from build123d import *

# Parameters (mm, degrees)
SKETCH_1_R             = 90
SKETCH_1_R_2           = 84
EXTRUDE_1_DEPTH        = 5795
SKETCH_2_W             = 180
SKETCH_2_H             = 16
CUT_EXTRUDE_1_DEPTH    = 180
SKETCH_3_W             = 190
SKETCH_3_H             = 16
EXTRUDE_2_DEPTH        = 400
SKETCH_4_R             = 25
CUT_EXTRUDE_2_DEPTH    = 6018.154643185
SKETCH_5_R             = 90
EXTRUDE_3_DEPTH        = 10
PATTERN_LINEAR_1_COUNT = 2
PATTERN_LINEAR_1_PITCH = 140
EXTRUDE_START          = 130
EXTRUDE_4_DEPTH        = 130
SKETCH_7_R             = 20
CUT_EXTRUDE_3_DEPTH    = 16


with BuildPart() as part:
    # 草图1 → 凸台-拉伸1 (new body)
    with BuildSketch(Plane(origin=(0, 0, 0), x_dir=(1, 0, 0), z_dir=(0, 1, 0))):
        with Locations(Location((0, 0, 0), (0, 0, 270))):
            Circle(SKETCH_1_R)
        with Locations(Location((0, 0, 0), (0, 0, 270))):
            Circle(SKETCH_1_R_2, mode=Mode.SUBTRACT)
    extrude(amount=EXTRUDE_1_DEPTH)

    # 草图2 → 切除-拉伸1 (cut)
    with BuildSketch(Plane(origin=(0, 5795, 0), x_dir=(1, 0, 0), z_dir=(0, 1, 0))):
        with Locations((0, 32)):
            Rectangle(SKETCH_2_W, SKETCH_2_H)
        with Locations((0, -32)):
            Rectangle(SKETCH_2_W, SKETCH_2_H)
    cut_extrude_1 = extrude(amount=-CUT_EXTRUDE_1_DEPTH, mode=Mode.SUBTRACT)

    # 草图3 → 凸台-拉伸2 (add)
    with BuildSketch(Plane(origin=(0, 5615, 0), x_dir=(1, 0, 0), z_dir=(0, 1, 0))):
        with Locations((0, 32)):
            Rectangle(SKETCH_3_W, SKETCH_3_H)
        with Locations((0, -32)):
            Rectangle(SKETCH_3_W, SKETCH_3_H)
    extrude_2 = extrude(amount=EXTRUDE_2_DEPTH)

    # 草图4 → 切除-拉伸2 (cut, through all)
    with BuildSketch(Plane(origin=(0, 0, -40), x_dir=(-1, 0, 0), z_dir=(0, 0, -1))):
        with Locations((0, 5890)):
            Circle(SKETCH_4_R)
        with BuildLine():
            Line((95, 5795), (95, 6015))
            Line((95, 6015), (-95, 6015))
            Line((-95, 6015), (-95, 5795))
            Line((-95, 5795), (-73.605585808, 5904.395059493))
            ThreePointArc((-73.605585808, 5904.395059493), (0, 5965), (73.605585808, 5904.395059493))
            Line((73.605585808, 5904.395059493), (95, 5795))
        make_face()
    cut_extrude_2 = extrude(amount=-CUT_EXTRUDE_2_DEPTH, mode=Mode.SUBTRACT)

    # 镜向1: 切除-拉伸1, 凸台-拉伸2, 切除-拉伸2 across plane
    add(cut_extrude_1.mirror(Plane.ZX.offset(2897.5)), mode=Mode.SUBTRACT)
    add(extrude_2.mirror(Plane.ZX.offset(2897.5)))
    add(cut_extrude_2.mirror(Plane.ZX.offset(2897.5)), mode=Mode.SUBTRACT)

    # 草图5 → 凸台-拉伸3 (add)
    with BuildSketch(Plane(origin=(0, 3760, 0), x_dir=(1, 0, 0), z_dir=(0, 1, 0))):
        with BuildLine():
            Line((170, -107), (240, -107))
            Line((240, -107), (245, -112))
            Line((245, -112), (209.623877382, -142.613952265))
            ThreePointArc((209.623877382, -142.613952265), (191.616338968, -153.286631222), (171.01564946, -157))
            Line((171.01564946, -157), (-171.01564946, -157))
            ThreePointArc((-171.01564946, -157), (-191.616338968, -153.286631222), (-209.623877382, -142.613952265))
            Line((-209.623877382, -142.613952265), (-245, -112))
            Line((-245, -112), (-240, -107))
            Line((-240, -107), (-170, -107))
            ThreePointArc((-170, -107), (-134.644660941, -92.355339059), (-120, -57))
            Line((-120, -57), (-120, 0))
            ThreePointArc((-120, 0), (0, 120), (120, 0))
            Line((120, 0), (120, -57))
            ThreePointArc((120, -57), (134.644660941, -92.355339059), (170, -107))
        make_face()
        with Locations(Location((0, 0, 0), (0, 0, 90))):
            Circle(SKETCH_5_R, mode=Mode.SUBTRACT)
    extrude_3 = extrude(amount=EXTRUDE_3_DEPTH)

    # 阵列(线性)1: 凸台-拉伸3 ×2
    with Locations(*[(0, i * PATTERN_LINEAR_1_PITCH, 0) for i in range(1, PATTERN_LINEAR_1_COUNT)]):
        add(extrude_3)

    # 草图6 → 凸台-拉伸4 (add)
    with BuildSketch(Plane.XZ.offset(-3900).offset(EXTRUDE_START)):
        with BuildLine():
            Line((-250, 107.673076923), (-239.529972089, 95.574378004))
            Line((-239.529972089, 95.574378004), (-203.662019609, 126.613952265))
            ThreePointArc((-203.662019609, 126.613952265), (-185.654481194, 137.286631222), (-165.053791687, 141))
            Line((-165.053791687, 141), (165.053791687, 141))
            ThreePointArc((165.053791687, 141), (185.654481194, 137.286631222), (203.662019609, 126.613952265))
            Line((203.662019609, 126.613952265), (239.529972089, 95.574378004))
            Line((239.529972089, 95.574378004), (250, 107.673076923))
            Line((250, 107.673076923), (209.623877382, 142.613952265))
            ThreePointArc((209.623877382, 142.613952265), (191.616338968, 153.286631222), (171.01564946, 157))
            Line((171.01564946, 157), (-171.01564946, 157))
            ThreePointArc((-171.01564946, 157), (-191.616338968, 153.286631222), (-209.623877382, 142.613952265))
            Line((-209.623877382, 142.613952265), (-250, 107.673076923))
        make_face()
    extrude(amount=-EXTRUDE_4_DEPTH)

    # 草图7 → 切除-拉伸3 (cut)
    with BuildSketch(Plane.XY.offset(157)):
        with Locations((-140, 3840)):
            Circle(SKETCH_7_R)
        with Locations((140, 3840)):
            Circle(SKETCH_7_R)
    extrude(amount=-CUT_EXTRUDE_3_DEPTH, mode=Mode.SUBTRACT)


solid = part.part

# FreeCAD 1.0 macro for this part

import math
import FreeCAD as App
import Part
import Sketcher

V = App.Vector


def add_polygon(sketch, points):
    """Adds a closed chain of lines whose ends are joined by coincident constraints."""
    first, n = sketch.GeometryCount, len(points)
    for a, b in zip(points, points[1:] + points[:1]):
        sketch.addGeometry(Part.LineSegment(App.Vector(*a, 0), App.Vector(*b, 0)), False)
    for i in range(n):
        sketch.addConstraint(Sketcher.Constraint("Coincident", first + i, 2, first + (i + 1) % n, 1))

doc = App.newDocument("Part")
body = doc.addObject("PartDesign::Body", "Body")

# Sketch on XZ plane
sketch1 = body.newObject("Sketcher::SketchObject", "Sketch")
sketch1.AttachmentSupport = (doc.getObject("XZ_Plane"), [""])
sketch1.MapMode = "FlatFace"
sketch1.addGeometry(Part.Circle(V(0, 0, 0), V(0, 0, 1), 90), False)
sketch1.addGeometry(Part.Circle(V(0, 0, 0), V(0, 0, 1), 84), False)
sketch1.addConstraint(Sketcher.Constraint("Coincident", 0, 3, -1, 1))
sketch1.addConstraint(Sketcher.Constraint("Coincident", 1, 3, -1, 1))
sketch1.addConstraint(Sketcher.Constraint("Diameter", 0, 180.0))
sketch1.addConstraint(Sketcher.Constraint("Diameter", 1, 168.0))
pad1 = body.newObject("PartDesign::Pad", "Pad")
pad1.Profile = sketch1
pad1.Length = 5795
pad1.Reversed = True

# Sketch on XZ plane
sketch2 = body.newObject("Sketcher::SketchObject", "Sketch001")
sketch2.AttachmentSupport = (doc.getObject("XZ_Plane"), [""])
sketch2.MapMode = "FlatFace"
sketch2.AttachmentOffset = App.Placement(V(0, 0, -5795), App.Rotation())
add_polygon(sketch2, [(-90, -40), (-90, -24), (90, -24), (90, -40)])  # lines 0-3
add_polygon(sketch2, [(-90, 24), (-90, 40), (90, 40), (90, 24)])  # lines 4-7
sketch2.addConstraint(Sketcher.Constraint("Vertical", 0))
sketch2.addConstraint(Sketcher.Constraint("Horizontal", 1))
sketch2.addConstraint(Sketcher.Constraint("Vertical", 2))
sketch2.addConstraint(Sketcher.Constraint("Horizontal", 3))
sketch2.addConstraint(Sketcher.Constraint("Vertical", 4))
sketch2.addConstraint(Sketcher.Constraint("Horizontal", 5))
sketch2.addConstraint(Sketcher.Constraint("Vertical", 6))
sketch2.addConstraint(Sketcher.Constraint("Horizontal", 7))
sketch2.addConstraint(Sketcher.Constraint("Symmetric", 2, 2, 4, 2, -1, 1))
sketch2.addConstraint(Sketcher.Constraint("Symmetric", 0, 2, 6, 2, -1, 1))
sketch2.addConstraint(Sketcher.Constraint("Vertical", 3, 2, 4, 2))
sketch2.addConstraint(Sketcher.Constraint("DistanceX", 1, 1, 1, 2, 180.0))
sketch2.addConstraint(Sketcher.Constraint("DistanceY", 0, 1, 0, 2, 16.0))
sketch2.addConstraint(Sketcher.Constraint("DistanceY", 0, 2, -1, 1, 24.0))
pocket1 = body.newObject("PartDesign::Pocket", "Pocket")
pocket1.Profile = sketch2
pocket1.Length = 180
pocket1.Reversed = True

# Sketch on XZ plane
sketch3 = body.newObject("Sketcher::SketchObject", "Sketch002")
sketch3.AttachmentSupport = (doc.getObject("XZ_Plane"), [""])
sketch3.MapMode = "FlatFace"
sketch3.AttachmentOffset = App.Placement(V(0, 0, -5615), App.Rotation())
add_polygon(sketch3, [(-95, -40), (-95, -24), (95, -24), (95, -40)])  # lines 0-3
add_polygon(sketch3, [(-95, 24), (-95, 40), (95, 40), (95, 24)])  # lines 4-7
sketch3.addConstraint(Sketcher.Constraint("Vertical", 0))
sketch3.addConstraint(Sketcher.Constraint("Horizontal", 1))
sketch3.addConstraint(Sketcher.Constraint("Vertical", 2))
sketch3.addConstraint(Sketcher.Constraint("Horizontal", 3))
sketch3.addConstraint(Sketcher.Constraint("Vertical", 4))
sketch3.addConstraint(Sketcher.Constraint("Horizontal", 5))
sketch3.addConstraint(Sketcher.Constraint("Vertical", 6))
sketch3.addConstraint(Sketcher.Constraint("Horizontal", 7))
sketch3.addConstraint(Sketcher.Constraint("Symmetric", 2, 2, 4, 2, -1, 1))
sketch3.addConstraint(Sketcher.Constraint("Symmetric", 0, 2, 6, 2, -1, 1))
sketch3.addConstraint(Sketcher.Constraint("Vertical", 3, 2, 4, 2))
sketch3.addConstraint(Sketcher.Constraint("DistanceX", 1, 1, 1, 2, 190.0))
sketch3.addConstraint(Sketcher.Constraint("DistanceY", 0, 1, 0, 2, 16.0))
sketch3.addConstraint(Sketcher.Constraint("DistanceY", 0, 2, -1, 1, 24.0))
pad2 = body.newObject("PartDesign::Pad", "Pad001")
pad2.Profile = sketch3
pad2.Length = 400
pad2.Reversed = True

# Sketch on XY plane
sketch4 = body.newObject("Sketcher::SketchObject", "Sketch003")
sketch4.AttachmentSupport = (doc.getObject("XY_Plane"), [""])
sketch4.MapMode = "FlatFace"
sketch4.AttachmentOffset = App.Placement(V(0, 0, -40), App.Rotation())
sketch4.addGeometry(Part.Circle(V(0, 5890, 0), V(0, 0, 1), 25), False)
sketch4.addGeometry(Part.LineSegment(V(-95, 5795, 0), V(-95, 6015, 0)), False)
sketch4.addGeometry(Part.LineSegment(V(-95, 6015, 0), V(95, 6015, 0)), False)
sketch4.addGeometry(Part.LineSegment(V(95, 6015, 0), V(95, 5795, 0)), False)
sketch4.addGeometry(Part.LineSegment(V(95, 5795, 0), V(74, 5904, 0)), False)
sketch4.addGeometry(Part.ArcOfCircle(Part.Circle(V(0, 5890, 0), V(0, 0, 1), 75), math.radians(11), math.radians(169)), False)
sketch4.addGeometry(Part.LineSegment(V(-74, 5904, 0), V(-95, 5795, 0)), False)
sketch4.addConstraint(Sketcher.Constraint("Coincident", 1, 2, 2, 1))
sketch4.addConstraint(Sketcher.Constraint("Coincident", 2, 2, 3, 1))
sketch4.addConstraint(Sketcher.Constraint("Coincident", 3, 2, 4, 1))
sketch4.addConstraint(Sketcher.Constraint("Tangent", 4, 2, 5, 1))
sketch4.addConstraint(Sketcher.Constraint("Tangent", 5, 2, 6, 1))
sketch4.addConstraint(Sketcher.Constraint("Coincident", 6, 2, 1, 1))
sketch4.addConstraint(Sketcher.Constraint("Vertical", 1))
sketch4.addConstraint(Sketcher.Constraint("Horizontal", 2))
sketch4.addConstraint(Sketcher.Constraint("Vertical", 3))
sketch4.addConstraint(Sketcher.Constraint("Coincident", 5, 3, 0, 3))
sketch4.addConstraint(Sketcher.Constraint("Symmetric", 4, 2, 5, 2, -2))
sketch4.addConstraint(Sketcher.Constraint("Horizontal", 3, 2, 6, 2))
sketch4.addConstraint(Sketcher.Constraint("Diameter", 0, 50.0))
sketch4.addConstraint(Sketcher.Constraint("Radius", 5, 75.0))
sketch4.addConstraint(Sketcher.Constraint("DistanceX", 2, 1, 2, 2, 190.0))
sketch4.addConstraint(Sketcher.Constraint("DistanceY", 1, 1, 1, 2, 220.0))
sketch4.addConstraint(Sketcher.Constraint("DistanceY", -1, 1, 0, 3, 5890.0))
sketch4.addConstraint(Sketcher.Constraint("DistanceY", -1, 1, 1, 2, 6015.0))
pocket2 = body.newObject("PartDesign::Pocket", "Pocket001")
pocket2.Profile = sketch4
pocket2.Type = "ThroughAll"
pocket2.Reversed = True
doc.recompute()

datumplane = body.newObject("PartDesign::Plane", "DatumPlane")
datumplane.AttachmentSupport = (doc.getObject("XZ_Plane"), [""])
datumplane.MapMode = "FlatFace"
datumplane.AttachmentOffset = App.Placement(V(0, 0, -2897.5), App.Rotation())
mirrored = body.newObject("PartDesign::Mirrored", "Mirrored")
mirrored.Originals = [pocket1, pad2, pocket2]
mirrored.MirrorPlane = (datumplane, [""])
body.Tip = mirrored

# Sketch on XZ plane
sketch5 = body.newObject("Sketcher::SketchObject", "Sketch004")
sketch5.AttachmentSupport = (doc.getObject("XZ_Plane"), [""])
sketch5.MapMode = "FlatFace"
sketch5.AttachmentOffset = App.Placement(V(0, 0, -3760), App.Rotation())
sketch5.addGeometry(Part.LineSegment(V(240, 107, 0), V(170, 107, 0)), False)
sketch5.addGeometry(Part.ArcOfCircle(Part.Circle(V(170, 57, 0), V(0, 0, 1), 50), math.radians(90), math.radians(180)), False)
sketch5.addGeometry(Part.LineSegment(V(120, 57, 0), V(120, 0, 0)), False)
sketch5.addGeometry(Part.ArcOfCircle(Part.Circle(V(0, 0, 0), V(0, 0, 1), 120), math.radians(180), math.radians(360)), False)
sketch5.addGeometry(Part.LineSegment(V(-120, 0, 0), V(-120, 57, 0)), False)
sketch5.addGeometry(Part.ArcOfCircle(Part.Circle(V(-170, 57, 0), V(0, 0, 1), 50), math.radians(0), math.radians(90)), False)
sketch5.addGeometry(Part.LineSegment(V(-170, 107, 0), V(-240, 107, 0)), False)
sketch5.addGeometry(Part.LineSegment(V(-240, 107, 0), V(-245, 112, 0)), False)
sketch5.addGeometry(Part.LineSegment(V(-245, 112, 0), V(-210, 143, 0)), False)
sketch5.addGeometry(Part.ArcOfCircle(Part.Circle(V(-171, 98, 0), V(0, 0, 1), 59), math.radians(90), math.radians(131)), False)
sketch5.addGeometry(Part.LineSegment(V(-171, 157, 0), V(171, 157, 0)), False)
sketch5.addGeometry(Part.ArcOfCircle(Part.Circle(V(171, 98, 0), V(0, 0, 1), 59), math.radians(49), math.radians(90)), False)
sketch5.addGeometry(Part.LineSegment(V(210, 143, 0), V(245, 112, 0)), False)
sketch5.addGeometry(Part.LineSegment(V(245, 112, 0), V(240, 107, 0)), False)
sketch5.addGeometry(Part.Circle(V(0, 0, 0), V(0, 0, 1), 90), False)
sketch5.addConstraint(Sketcher.Constraint("Tangent", 0, 2, 1, 1))
sketch5.addConstraint(Sketcher.Constraint("Tangent", 1, 2, 2, 1))
sketch5.addConstraint(Sketcher.Constraint("Tangent", 2, 2, 3, 2))
sketch5.addConstraint(Sketcher.Constraint("Tangent", 3, 1, 4, 1))
sketch5.addConstraint(Sketcher.Constraint("Tangent", 4, 2, 5, 1))
sketch5.addConstraint(Sketcher.Constraint("Tangent", 5, 2, 6, 1))
sketch5.addConstraint(Sketcher.Constraint("Coincident", 6, 2, 7, 1))
sketch5.addConstraint(Sketcher.Constraint("Coincident", 7, 2, 8, 1))
sketch5.addConstraint(Sketcher.Constraint("Tangent", 8, 2, 9, 2))
sketch5.addConstraint(Sketcher.Constraint("Tangent", 9, 1, 10, 1))
sketch5.addConstraint(Sketcher.Constraint("Tangent", 10, 2, 11, 2))
sketch5.addConstraint(Sketcher.Constraint("Tangent", 11, 1, 12, 1))
sketch5.addConstraint(Sketcher.Constraint("Coincident", 12, 2, 13, 1))
sketch5.addConstraint(Sketcher.Constraint("Coincident", 13, 2, 0, 1))
sketch5.addConstraint(Sketcher.Constraint("Horizontal", 0))
sketch5.addConstraint(Sketcher.Constraint("Vertical", 2))
sketch5.addConstraint(Sketcher.Constraint("Vertical", 4))
sketch5.addConstraint(Sketcher.Constraint("Horizontal", 6))
sketch5.addConstraint(Sketcher.Constraint("Horizontal", 10))
sketch5.addConstraint(Sketcher.Constraint("Coincident", 3, 3, -1, 1))
sketch5.addConstraint(Sketcher.Constraint("Coincident", 14, 3, -1, 1))
sketch5.addConstraint(Sketcher.Constraint("Equal", 1, 5))
sketch5.addConstraint(Sketcher.Constraint("Equal", 9, 11))
sketch5.addConstraint(Sketcher.Constraint("Symmetric", 8, 2, 11, 1, -2))
sketch5.addConstraint(Sketcher.Constraint("Symmetric", 6, 2, 13, 2, -2))
sketch5.addConstraint(Sketcher.Constraint("Perpendicular", 7, 13))
sketch5.addConstraint(Sketcher.Constraint("Horizontal", 7, 2, 12, 2))
sketch5.addConstraint(Sketcher.Constraint("Diameter", 14, 180.0))
sketch5.addConstraint(Sketcher.Constraint("Radius", 1, 50.0))
sketch5.addConstraint(Sketcher.Constraint("Radius", 3, 120.0))
sketch5.addConstraint(Sketcher.Constraint("Radius", 9, 59.0))
sketch5.addConstraint(Sketcher.Constraint("DistanceX", 0, 2, 0, 1, 70.0))
sketch5.addConstraint(Sketcher.Constraint("DistanceY", 2, 2, 2, 1, 57.0))
sketch5.addConstraint(Sketcher.Constraint("DistanceY", -1, 1, 9, 3, 98.0))
sketch5.addConstraint(Sketcher.Constraint("DistanceX", 7, 2, -1, 1, 245.0))
sketch5.addConstraint(Sketcher.Constraint("DistanceX", 10, 1, 10, 2, 342.031299))
pad3 = body.newObject("PartDesign::Pad", "Pad002")
pad3.Profile = sketch5
pad3.Length = 10
pad3.Reversed = True
doc.recompute()

linearpattern = body.newObject("PartDesign::LinearPattern", "LinearPattern")
linearpattern.Originals = [pad3]
linearpattern.Direction = (doc.getObject("Y_Axis"), [""])
linearpattern.Mode = "offset"
linearpattern.Offset = 140
linearpattern.Occurrences = 2
body.Tip = linearpattern

# Sketch on XZ plane
sketch6 = body.newObject("Sketcher::SketchObject", "Sketch005")
sketch6.AttachmentSupport = (doc.getObject("XZ_Plane"), [""])
sketch6.MapMode = "FlatFace"
sketch6.AttachmentOffset = App.Placement(V(0, 0, -3770), App.Rotation())
sketch6.addGeometry(Part.LineSegment(V(-250, 108, 0), V(-240, 96, 0)), False)
sketch6.addGeometry(Part.LineSegment(V(-240, 96, 0), V(-204, 127, 0)), False)
sketch6.addGeometry(Part.ArcOfCircle(Part.Circle(V(-165, 82, 0), V(0, 0, 1), 59), math.radians(90), math.radians(131)), False)
sketch6.addGeometry(Part.LineSegment(V(-165, 141, 0), V(165, 141, 0)), False)
sketch6.addGeometry(Part.ArcOfCircle(Part.Circle(V(165, 82, 0), V(0, 0, 1), 59), math.radians(49), math.radians(90)), False)
sketch6.addGeometry(Part.LineSegment(V(204, 127, 0), V(240, 96, 0)), False)
sketch6.addGeometry(Part.LineSegment(V(240, 96, 0), V(250, 108, 0)), False)
sketch6.addGeometry(Part.LineSegment(V(250, 108, 0), V(210, 143, 0)), False)
sketch6.addGeometry(Part.ArcOfCircle(Part.Circle(V(171, 98, 0), V(0, 0, 1), 59), math.radians(49), math.radians(90)), False)
sketch6.addGeometry(Part.LineSegment(V(171, 157, 0), V(-171, 157, 0)), False)
sketch6.addGeometry(Part.ArcOfCircle(Part.Circle(V(-171, 98, 0), V(0, 0, 1), 59), math.radians(90), math.radians(131)), False)
sketch6.addGeometry(Part.LineSegment(V(-210, 143, 0), V(-250, 108, 0)), False)
sketch6.addConstraint(Sketcher.Constraint("Coincident", 0, 2, 1, 1))
sketch6.addConstraint(Sketcher.Constraint("Tangent", 1, 2, 2, 2))
sketch6.addConstraint(Sketcher.Constraint("Tangent", 2, 1, 3, 1))
sketch6.addConstraint(Sketcher.Constraint("Tangent", 3, 2, 4, 2))
sketch6.addConstraint(Sketcher.Constraint("Tangent", 4, 1, 5, 1))
sketch6.addConstraint(Sketcher.Constraint("Coincident", 5, 2, 6, 1))
sketch6.addConstraint(Sketcher.Constraint("Coincident", 6, 2, 7, 1))
sketch6.addConstraint(Sketcher.Constraint("Tangent", 7, 2, 8, 1))
sketch6.addConstraint(Sketcher.Constraint("Tangent", 8, 2, 9, 1))
sketch6.addConstraint(Sketcher.Constraint("Tangent", 9, 2, 10, 1))
sketch6.addConstraint(Sketcher.Constraint("Tangent", 10, 2, 11, 1))
sketch6.addConstraint(Sketcher.Constraint("Coincident", 11, 2, 0, 1))
sketch6.addConstraint(Sketcher.Constraint("Horizontal", 3))
sketch6.addConstraint(Sketcher.Constraint("Horizontal", 9))
sketch6.addConstraint(Sketcher.Constraint("Equal", 2, 4))
sketch6.addConstraint(Sketcher.Constraint("Equal", 4, 8))
sketch6.addConstraint(Sketcher.Constraint("Equal", 8, 10))
sketch6.addConstraint(Sketcher.Constraint("Symmetric", 1, 2, 4, 1, -2))
sketch6.addConstraint(Sketcher.Constraint("Symmetric", 7, 2, 10, 2, -2))
sketch6.addConstraint(Sketcher.Constraint("Perpendicular", 0, 1))
sketch6.addConstraint(Sketcher.Constraint("Perpendicular", 5, 6))
sketch6.addConstraint(Sketcher.Constraint("Perpendicular", 6, 7))
sketch6.addConstraint(Sketcher.Constraint("Horizontal", 0, 2, 5, 2))
sketch6.addConstraint(Sketcher.Constraint("Radius", 2, 59.0))
sketch6.addConstraint(Sketcher.Constraint("Distance", 0, 16.0))
sketch6.addConstraint(Sketcher.Constraint("DistanceY", -1, 1, 2, 3, 82.0))
sketch6.addConstraint(Sketcher.Constraint("DistanceY", -1, 1, 8, 3, 98.0))
sketch6.addConstraint(Sketcher.Constraint("DistanceX", -1, 1, 6, 2, 250.0))
sketch6.addConstraint(Sketcher.Constraint("DistanceX", 9, 2, 9, 1, 342.031299))
sketch6.addConstraint(Sketcher.Constraint("DistanceY", 5, 2, 6, 2, 12.098699))
pad4 = body.newObject("PartDesign::Pad", "Pad003")
pad4.Profile = sketch6
pad4.Length = 130
pad4.Reversed = True

# Sketch on XY plane
sketch7 = body.newObject("Sketcher::SketchObject", "Sketch006")
sketch7.AttachmentSupport = (doc.getObject("XY_Plane"), [""])
sketch7.MapMode = "FlatFace"
sketch7.AttachmentOffset = App.Placement(V(0, 0, 157), App.Rotation())
sketch7.addGeometry(Part.Circle(V(-140, 3840, 0), V(0, 0, 1), 20), False)
sketch7.addGeometry(Part.Circle(V(140, 3840, 0), V(0, 0, 1), 20), False)
sketch7.addConstraint(Sketcher.Constraint("Equal", 0, 1))
sketch7.addConstraint(Sketcher.Constraint("Symmetric", 0, 3, 1, 3, -2))
sketch7.addConstraint(Sketcher.Constraint("Diameter", 0, 40.0))
sketch7.addConstraint(Sketcher.Constraint("DistanceX", 0, 3, -1, 1, 140.0))
sketch7.addConstraint(Sketcher.Constraint("DistanceY", -1, 1, 0, 3, 3840.0))
pocket3 = body.newObject("PartDesign::Pocket", "Pocket002")
pocket3.Profile = sketch7
pocket3.Length = 16

doc.recompute()
